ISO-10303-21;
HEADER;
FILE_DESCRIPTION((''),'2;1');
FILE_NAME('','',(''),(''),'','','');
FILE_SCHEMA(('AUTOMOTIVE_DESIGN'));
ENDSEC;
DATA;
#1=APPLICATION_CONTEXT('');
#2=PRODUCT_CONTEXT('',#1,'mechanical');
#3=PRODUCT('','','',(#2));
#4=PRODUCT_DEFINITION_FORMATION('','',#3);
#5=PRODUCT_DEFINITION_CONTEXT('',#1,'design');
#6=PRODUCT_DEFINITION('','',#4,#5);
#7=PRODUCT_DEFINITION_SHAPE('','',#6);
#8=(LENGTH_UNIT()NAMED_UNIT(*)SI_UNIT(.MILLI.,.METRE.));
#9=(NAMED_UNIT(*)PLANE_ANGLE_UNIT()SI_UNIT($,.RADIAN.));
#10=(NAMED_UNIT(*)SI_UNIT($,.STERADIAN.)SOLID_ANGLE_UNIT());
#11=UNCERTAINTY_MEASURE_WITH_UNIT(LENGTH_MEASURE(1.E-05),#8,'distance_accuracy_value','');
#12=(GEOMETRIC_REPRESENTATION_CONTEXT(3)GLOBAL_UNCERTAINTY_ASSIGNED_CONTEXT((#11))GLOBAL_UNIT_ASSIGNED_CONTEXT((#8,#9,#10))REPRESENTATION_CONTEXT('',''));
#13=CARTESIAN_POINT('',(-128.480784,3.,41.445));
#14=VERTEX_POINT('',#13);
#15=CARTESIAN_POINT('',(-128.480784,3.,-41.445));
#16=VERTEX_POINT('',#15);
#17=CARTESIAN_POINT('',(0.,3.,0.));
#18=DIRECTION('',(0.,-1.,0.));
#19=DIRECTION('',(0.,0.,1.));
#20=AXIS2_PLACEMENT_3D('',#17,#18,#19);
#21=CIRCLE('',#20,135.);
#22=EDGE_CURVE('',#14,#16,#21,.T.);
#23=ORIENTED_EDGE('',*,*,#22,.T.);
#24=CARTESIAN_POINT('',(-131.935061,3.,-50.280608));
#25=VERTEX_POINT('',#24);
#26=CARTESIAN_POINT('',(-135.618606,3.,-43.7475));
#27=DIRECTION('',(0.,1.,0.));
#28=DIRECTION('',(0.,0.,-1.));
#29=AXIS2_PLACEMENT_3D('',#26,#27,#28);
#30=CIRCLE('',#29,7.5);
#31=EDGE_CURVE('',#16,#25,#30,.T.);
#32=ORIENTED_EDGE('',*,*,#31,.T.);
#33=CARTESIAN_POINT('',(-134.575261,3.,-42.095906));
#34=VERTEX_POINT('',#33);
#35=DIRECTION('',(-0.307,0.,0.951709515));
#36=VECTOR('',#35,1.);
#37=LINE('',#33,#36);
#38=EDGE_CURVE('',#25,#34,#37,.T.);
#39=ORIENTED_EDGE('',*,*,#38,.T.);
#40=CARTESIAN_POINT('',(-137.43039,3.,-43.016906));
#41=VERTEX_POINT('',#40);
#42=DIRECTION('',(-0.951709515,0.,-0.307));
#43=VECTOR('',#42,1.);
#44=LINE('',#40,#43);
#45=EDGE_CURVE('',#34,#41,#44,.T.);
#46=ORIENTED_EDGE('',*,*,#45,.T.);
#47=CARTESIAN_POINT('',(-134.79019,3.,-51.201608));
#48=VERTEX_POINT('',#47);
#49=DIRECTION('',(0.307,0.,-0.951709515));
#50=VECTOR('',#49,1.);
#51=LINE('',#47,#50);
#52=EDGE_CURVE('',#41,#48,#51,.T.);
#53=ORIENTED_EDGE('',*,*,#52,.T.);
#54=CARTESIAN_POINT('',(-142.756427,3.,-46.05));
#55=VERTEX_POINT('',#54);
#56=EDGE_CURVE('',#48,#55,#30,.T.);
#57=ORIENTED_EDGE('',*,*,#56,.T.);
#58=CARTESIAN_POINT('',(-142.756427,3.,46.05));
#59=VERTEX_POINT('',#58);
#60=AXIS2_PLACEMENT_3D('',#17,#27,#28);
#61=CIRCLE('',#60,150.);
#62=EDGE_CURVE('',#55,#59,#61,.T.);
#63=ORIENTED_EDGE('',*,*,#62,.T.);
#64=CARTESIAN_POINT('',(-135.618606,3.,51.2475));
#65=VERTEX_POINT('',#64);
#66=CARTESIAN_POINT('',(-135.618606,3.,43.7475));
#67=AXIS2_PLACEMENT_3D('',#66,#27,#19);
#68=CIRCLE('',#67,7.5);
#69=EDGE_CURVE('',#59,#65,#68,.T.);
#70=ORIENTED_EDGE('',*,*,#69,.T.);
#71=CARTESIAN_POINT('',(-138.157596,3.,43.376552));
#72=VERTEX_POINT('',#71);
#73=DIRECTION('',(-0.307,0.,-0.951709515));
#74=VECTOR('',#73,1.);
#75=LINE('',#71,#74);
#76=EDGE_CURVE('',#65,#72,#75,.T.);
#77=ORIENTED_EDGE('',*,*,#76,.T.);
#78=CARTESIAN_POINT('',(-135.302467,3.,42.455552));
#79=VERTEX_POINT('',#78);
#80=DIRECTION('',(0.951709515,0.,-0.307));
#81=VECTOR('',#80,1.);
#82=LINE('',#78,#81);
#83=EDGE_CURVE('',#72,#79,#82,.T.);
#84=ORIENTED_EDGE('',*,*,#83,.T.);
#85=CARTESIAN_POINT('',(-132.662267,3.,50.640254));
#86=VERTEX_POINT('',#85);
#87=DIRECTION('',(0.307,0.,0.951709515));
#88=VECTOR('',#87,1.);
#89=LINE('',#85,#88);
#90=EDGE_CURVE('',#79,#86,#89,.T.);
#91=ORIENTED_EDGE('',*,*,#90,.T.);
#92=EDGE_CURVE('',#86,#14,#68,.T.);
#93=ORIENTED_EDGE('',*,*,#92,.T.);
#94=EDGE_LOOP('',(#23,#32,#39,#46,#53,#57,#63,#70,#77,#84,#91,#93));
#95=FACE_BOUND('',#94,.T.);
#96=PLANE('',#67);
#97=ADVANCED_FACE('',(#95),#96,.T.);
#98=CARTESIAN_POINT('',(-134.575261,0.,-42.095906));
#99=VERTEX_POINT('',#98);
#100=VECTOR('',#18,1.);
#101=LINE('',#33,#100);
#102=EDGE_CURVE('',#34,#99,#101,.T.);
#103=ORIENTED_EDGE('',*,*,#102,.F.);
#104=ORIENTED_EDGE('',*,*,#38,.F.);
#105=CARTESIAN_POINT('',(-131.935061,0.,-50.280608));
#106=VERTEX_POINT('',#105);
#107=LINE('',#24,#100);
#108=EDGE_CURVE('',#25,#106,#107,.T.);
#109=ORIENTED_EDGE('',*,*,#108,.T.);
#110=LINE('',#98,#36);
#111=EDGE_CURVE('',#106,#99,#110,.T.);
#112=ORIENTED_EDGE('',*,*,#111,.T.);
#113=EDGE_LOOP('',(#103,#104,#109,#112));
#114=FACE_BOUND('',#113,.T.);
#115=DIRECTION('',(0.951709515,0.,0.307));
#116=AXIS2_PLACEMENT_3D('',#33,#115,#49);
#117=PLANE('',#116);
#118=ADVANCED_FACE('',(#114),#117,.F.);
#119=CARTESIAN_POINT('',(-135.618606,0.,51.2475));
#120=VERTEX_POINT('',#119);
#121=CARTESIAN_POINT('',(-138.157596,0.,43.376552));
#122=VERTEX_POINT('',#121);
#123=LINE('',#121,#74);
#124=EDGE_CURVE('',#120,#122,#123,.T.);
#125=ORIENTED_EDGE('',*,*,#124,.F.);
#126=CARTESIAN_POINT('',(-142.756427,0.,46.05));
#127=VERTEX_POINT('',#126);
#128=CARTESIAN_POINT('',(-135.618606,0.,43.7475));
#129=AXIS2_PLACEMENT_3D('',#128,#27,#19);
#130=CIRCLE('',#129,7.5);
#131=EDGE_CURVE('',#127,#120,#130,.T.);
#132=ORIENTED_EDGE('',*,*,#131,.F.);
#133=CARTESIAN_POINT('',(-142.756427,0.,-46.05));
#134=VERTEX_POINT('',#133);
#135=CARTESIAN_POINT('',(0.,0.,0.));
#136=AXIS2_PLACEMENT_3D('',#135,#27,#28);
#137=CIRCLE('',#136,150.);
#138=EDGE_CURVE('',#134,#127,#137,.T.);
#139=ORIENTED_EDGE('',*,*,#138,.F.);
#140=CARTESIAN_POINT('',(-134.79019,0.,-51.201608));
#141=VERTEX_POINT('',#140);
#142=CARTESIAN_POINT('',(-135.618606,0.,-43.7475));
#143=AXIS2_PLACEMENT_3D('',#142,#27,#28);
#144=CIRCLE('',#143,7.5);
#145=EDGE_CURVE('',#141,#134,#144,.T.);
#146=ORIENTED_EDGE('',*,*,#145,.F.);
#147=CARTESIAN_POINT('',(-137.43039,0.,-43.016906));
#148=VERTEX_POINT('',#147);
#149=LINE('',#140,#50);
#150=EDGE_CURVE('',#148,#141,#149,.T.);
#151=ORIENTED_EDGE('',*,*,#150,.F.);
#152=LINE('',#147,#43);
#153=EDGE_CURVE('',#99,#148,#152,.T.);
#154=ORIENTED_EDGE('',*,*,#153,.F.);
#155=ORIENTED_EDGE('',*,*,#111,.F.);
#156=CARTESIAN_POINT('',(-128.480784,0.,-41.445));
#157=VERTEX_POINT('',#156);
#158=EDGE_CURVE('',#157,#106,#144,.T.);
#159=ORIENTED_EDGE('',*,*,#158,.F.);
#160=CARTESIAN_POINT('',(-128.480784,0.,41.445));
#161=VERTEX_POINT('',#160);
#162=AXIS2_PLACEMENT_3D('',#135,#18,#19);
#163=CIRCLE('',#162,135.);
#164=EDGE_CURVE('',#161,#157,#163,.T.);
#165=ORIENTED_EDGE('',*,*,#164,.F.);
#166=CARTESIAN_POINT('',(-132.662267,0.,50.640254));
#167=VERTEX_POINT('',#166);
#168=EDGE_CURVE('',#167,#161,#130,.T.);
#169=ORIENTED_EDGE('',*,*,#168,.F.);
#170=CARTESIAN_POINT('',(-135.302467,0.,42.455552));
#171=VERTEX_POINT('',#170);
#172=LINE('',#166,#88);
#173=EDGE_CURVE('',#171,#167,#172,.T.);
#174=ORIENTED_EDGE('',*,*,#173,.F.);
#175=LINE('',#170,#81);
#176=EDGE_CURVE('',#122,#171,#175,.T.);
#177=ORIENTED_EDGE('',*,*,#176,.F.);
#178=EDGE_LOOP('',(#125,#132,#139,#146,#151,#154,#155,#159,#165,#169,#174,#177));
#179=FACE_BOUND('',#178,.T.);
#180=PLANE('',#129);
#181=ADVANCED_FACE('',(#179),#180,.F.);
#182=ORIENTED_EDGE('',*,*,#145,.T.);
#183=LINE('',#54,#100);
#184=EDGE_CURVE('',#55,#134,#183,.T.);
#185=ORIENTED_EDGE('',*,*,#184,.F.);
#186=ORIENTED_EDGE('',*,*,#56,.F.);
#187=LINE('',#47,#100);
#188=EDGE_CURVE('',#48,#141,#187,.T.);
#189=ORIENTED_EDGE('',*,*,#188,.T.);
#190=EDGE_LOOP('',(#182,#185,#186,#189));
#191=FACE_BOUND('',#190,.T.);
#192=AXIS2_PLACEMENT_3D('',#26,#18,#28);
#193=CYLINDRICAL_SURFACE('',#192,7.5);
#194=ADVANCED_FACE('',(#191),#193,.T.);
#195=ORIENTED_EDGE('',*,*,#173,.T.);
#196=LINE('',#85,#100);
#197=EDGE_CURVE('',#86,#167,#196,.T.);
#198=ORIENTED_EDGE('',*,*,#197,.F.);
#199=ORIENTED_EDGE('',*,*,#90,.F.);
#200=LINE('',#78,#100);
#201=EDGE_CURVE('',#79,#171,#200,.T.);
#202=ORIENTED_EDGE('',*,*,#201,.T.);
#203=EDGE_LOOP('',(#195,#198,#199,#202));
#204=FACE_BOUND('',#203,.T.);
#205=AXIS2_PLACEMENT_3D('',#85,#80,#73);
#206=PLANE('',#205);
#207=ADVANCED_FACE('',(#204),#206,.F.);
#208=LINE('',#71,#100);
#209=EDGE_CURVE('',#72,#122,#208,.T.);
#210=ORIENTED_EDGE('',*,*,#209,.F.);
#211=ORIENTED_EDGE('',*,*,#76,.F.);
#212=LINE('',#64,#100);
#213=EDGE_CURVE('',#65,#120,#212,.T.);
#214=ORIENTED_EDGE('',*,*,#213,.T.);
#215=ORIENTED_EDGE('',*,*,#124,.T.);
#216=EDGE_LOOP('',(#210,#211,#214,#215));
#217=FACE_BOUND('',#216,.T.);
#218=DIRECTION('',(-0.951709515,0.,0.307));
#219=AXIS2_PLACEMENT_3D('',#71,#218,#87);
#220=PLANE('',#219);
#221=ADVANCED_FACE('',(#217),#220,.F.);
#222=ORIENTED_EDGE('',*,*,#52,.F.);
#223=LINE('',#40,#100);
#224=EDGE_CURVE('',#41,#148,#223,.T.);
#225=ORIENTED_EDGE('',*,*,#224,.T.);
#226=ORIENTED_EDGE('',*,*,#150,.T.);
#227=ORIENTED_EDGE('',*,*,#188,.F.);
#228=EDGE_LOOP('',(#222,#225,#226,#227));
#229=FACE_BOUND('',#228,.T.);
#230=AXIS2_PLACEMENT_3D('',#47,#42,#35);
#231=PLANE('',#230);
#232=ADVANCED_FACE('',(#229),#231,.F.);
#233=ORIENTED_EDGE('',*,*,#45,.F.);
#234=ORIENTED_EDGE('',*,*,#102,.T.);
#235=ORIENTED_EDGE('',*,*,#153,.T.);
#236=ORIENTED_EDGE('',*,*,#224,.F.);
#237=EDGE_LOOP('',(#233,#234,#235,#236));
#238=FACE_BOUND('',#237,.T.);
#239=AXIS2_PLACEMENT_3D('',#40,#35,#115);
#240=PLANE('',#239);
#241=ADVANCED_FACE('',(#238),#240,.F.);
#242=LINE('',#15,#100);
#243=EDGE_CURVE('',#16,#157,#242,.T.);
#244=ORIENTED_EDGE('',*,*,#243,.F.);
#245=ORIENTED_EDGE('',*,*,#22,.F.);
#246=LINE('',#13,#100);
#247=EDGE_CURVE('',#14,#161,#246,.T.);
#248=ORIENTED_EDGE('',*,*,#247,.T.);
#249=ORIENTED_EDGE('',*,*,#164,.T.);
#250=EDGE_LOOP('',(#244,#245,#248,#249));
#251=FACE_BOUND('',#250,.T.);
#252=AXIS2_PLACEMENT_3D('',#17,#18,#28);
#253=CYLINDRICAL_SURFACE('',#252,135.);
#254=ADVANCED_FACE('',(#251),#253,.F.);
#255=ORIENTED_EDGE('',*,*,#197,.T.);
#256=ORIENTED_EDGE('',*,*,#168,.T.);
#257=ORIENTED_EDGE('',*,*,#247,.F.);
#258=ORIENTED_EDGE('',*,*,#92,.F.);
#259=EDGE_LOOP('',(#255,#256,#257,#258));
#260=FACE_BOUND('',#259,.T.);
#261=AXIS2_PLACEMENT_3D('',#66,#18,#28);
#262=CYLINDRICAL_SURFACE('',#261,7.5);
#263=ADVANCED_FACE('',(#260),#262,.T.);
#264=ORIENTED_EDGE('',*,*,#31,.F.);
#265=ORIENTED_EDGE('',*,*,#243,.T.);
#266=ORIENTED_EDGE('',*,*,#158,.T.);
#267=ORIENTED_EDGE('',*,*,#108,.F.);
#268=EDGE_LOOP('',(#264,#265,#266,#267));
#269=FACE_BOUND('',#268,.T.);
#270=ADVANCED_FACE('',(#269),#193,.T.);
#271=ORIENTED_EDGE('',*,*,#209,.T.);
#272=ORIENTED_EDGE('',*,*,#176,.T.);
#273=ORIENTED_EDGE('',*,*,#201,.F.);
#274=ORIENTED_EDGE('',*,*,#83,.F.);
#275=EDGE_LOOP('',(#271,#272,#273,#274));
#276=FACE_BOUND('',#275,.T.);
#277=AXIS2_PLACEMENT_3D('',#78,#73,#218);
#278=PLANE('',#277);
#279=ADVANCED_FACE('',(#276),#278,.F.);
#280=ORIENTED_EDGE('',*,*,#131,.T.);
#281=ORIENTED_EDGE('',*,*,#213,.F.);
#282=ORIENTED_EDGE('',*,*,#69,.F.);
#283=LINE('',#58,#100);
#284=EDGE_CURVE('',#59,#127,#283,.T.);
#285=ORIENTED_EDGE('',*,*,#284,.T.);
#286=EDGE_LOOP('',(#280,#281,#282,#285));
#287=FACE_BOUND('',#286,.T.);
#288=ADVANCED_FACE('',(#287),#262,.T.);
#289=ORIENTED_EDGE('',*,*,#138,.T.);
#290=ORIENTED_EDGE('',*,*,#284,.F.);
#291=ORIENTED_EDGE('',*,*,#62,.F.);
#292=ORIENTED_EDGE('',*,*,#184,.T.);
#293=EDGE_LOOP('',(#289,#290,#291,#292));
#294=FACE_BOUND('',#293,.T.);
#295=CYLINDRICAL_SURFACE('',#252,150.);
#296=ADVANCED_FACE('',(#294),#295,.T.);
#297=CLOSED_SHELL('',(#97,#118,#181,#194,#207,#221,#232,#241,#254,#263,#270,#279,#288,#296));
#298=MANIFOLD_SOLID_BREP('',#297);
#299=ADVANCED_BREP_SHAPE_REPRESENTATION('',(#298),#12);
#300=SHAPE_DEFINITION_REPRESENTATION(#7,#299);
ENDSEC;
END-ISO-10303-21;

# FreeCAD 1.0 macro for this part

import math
import FreeCAD as App
import Part
import Sketcher

doc = App.newDocument("Part")
params = doc.addObject("Spreadsheet::Sheet", "Params")
for row, (alias, value) in enumerate([
    ("sketch1_radius", "150 mm"),
    ("sketch1_radius2", "135 mm"),
    ("sketch1_length", "3 mm"),
    ("sketch1_length2", "8.6 mm"),
    ("pad1_length", "3 mm"),
], start=1):
    params.set(f"A{row}", alias)
    params.set(f"B{row}", "=" + value)
    params.setAlias(f"B{row}", alias)

body = doc.addObject("PartDesign::Body", "Body")

# Sketch on XZ plane
sketch1 = doc.addObject("Sketcher::SketchObject", "Sketch")
body.addObject(sketch1)
sketch1.AttachmentSupport = (doc.XZ_Plane, [""])
sketch1.MapMode = "FlatFace"
sketch1.addGeometry([
    Part.LineSegment(App.Vector(-137.43039, -43.016906, 0), App.Vector(-134.79019, -51.201608, 0)),  # 0
    Part.ArcOfCircle(Part.Circle(App.Vector(-135.618606, -43.7475, 0), App.Vector(0, 0, 1), 7.5), math.radians(-162.121471), math.radians(-83.65843)),  # 1
    Part.ArcOfCircle(Part.Circle(App.Vector(0, 0, 0), App.Vector(0, 0, 1), 150), math.radians(162.121471), math.radians(197.878529)),  # 2
    Part.ArcOfCircle(Part.Circle(App.Vector(-135.618606, 43.7475, 0), App.Vector(0, 0, 1), 7.5), math.radians(90), math.radians(162.121471)),  # 3
    Part.LineSegment(App.Vector(-135.618606, 51.2475, 0), App.Vector(-138.157596, 43.376552, 0)),  # 4
    Part.LineSegment(App.Vector(-138.157596, 43.376552, 0), App.Vector(-135.302467, 42.455552, 0)),  # 5
    Part.LineSegment(App.Vector(-135.302467, 42.455552, 0), App.Vector(-132.662267, 50.640254, 0)),  # 6
    Part.ArcOfCircle(Part.Circle(App.Vector(-135.618606, 43.7475, 0), App.Vector(0, 0, 1), 7.5), math.radians(-17.878529), math.radians(66.785252)),  # 7
    Part.ArcOfCircle(Part.Circle(App.Vector(0, 0, 0), App.Vector(0, 0, 1), 135), math.radians(162.121471), math.radians(197.878529)),  # 8
    Part.ArcOfCircle(Part.Circle(App.Vector(-135.618606, -43.7475, 0), App.Vector(0, 0, 1), 7.5), math.radians(-60.584512), math.radians(17.878529)),  # 9
    Part.LineSegment(App.Vector(-131.935061, -50.280608, 0), App.Vector(-134.575261, -42.095906, 0)),  # 10
    Part.LineSegment(App.Vector(-134.575261, -42.095906, 0), App.Vector(-137.43039, -43.016906, 0)),  # 11
], False)
sketch1.addConstraint([
    Sketcher.Constraint("Coincident", 0, 2, 1, 2),
    Sketcher.Constraint("Tangent", 1, 1, 2, 2),
    Sketcher.Constraint("Tangent", 2, 1, 3, 2),
    Sketcher.Constraint("Coincident", 3, 1, 4, 1),
    Sketcher.Constraint("Coincident", 4, 2, 5, 1),
    Sketcher.Constraint("Coincident", 5, 2, 6, 1),
    Sketcher.Constraint("Coincident", 6, 2, 7, 2),
    Sketcher.Constraint("Tangent", 7, 1, 8, 1),
    Sketcher.Constraint("Tangent", 8, 2, 9, 2),
    Sketcher.Constraint("Coincident", 9, 1, 10, 1),
    Sketcher.Constraint("Coincident", 10, 2, 11, 1),
    Sketcher.Constraint("Coincident", 11, 2, 0, 1),
    Sketcher.Constraint("Coincident", 2, 3, -1, 1),
    Sketcher.Constraint("Coincident", 8, 3, -1, 1),
    Sketcher.Constraint("Coincident", 7, 3, 3, 3),
    Sketcher.Constraint("Coincident", 9, 3, 1, 3),
    Sketcher.Constraint("Equal", 1, 3),
    Sketcher.Constraint("Equal", 3, 7),
    Sketcher.Constraint("Perpendicular", 4, 5),
    Sketcher.Constraint("Perpendicular", 5, 6),
    Sketcher.Constraint("Parallel", 0, 10),
    Sketcher.Constraint("Perpendicular", 10, 11),
    Sketcher.Constraint("Vertical", 1, 3, 3, 3),
    Sketcher.Constraint("Vertical", 9, 3, 3, 1),
    Sketcher.Constraint("Equal", 0, 6),
    Sketcher.Constraint("Equal", 6, 10),
    Sketcher.Constraint("Equal", 5, 11),
    Sketcher.Constraint("Radius", 2, 150.0),
    Sketcher.Constraint("Radius", 8, 135.0),
    Sketcher.Constraint("Distance", 5, 3.0),
    Sketcher.Constraint("Distance", 0, 8.6),
    Sketcher.Constraint("DistanceY", 1, 1, 2, 1, 92.1),
    Sketcher.Constraint("DistanceY", 5, 2, 4, 2, 0.921),
    Sketcher.Constraint("DistanceY", 0, 2, 9, 1, 0.921),
])
sketch1.setExpression("Constraints[27]", "Params.sketch1_radius")
sketch1.setExpression("Constraints[28]", "Params.sketch1_radius2")
sketch1.setExpression("Constraints[29]", "Params.sketch1_length")
sketch1.setExpression("Constraints[30]", "Params.sketch1_length2")
pad1 = doc.addObject("PartDesign::Pad", "Pad")
body.addObject(pad1)
pad1.Profile = sketch1
pad1.setExpression("Length", "Params.pad1_length")
pad1.Reversed = True

doc.recompute()
